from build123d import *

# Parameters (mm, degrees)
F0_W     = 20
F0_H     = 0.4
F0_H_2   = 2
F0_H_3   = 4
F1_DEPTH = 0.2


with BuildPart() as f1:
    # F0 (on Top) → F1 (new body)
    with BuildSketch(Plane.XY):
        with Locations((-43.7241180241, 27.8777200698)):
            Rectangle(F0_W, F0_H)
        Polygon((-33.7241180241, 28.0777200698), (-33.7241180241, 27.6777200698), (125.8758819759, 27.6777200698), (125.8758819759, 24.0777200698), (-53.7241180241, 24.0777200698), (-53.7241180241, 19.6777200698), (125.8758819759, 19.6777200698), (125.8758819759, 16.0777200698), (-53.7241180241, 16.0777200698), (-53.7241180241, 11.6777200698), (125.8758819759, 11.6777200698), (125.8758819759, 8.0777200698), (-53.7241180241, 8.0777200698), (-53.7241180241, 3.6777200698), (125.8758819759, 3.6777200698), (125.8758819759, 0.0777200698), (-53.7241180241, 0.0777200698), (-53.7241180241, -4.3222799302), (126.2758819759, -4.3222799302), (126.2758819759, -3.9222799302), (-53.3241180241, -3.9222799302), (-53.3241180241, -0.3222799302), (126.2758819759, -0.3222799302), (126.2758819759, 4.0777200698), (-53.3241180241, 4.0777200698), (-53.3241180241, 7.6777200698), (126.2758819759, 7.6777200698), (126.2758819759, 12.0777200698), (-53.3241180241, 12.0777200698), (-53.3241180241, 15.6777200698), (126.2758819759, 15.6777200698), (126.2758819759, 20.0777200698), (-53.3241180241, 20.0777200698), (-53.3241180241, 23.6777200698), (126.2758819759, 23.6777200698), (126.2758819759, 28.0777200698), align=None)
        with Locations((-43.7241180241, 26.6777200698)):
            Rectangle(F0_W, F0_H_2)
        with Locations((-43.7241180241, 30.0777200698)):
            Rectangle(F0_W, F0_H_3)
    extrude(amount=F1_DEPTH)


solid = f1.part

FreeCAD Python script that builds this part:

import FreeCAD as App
import Part
import Sketcher

V = App.Vector


def add_polygon(sketch, points):
    """Adds a closed chain of lines whose ends are joined by coincident constraints."""
    first, n = sketch.GeometryCount, len(points)
    for a, b in zip(points, points[1:] + points[:1]):
        sketch.addGeometry(Part.LineSegment(App.Vector(*a, 0), App.Vector(*b, 0)), False)
    for i in range(n):
        sketch.addConstraint(Sketcher.Constraint("Coincident", first + i, 2, first + (i + 1) % n, 1))

doc = App.newDocument("Part")
body = doc.addObject("PartDesign::Body", "Body")

sketch1 = doc.addObject("Sketcher::SketchObject", "Sketch")
body.addObject(sketch1)
sketch1.AttachmentSupport = (doc.XY_Plane, [""])
sketch1.MapMode = "FlatFace"
add_polygon(sketch1, [(-53.724118, 32.07772), (-53.724118, 25.67772), (-33.724118, 25.67772), (-33.724118, 27.67772), (125.875882, 27.67772), (125.875882, 24.07772), (-53.724118, 24.07772), (-53.724118, 19.67772), (125.875882, 19.67772), (125.875882, 16.07772), (-53.724118, 16.07772), (-53.724118, 11.67772), (125.875882, 11.67772), (125.875882, 8.07772), (-53.724118, 8.07772), (-53.724118, 3.67772), (125.875882, 3.67772), (125.875882, 0.07772), (-53.724118, 0.07772), (-53.724118, -4.32228), (126.275882, -4.32228), (126.275882, -3.92228), (-53.324118, -3.92228), (-53.324118, -0.32228), (126.275882, -0.32228), (126.275882, 4.07772), (-53.324118, 4.07772), (-53.324118, 7.67772), (126.275882, 7.67772), (126.275882, 12.07772), (-53.324118, 12.07772), (-53.324118, 15.67772), (126.275882, 15.67772), (126.275882, 20.07772), (-53.324118, 20.07772), (-53.324118, 23.67772), (126.275882, 23.67772), (126.275882, 28.07772), (-33.724118, 28.07772), (-33.724118, 32.07772)])
sketch1.addConstraint([
    Sketcher.Constraint("Vertical", 0),
    Sketcher.Constraint("Horizontal", 1),
    Sketcher.Constraint("Vertical", 2),
    Sketcher.Constraint("Horizontal", 3),
    Sketcher.Constraint("Vertical", 4),
    Sketcher.Constraint("Horizontal", 5),
    Sketcher.Constraint("Vertical", 6),
    Sketcher.Constraint("Horizontal", 7),
    Sketcher.Constraint("Vertical", 8),
    Sketcher.Constraint("Horizontal", 9),
    Sketcher.Constraint("Vertical", 10),
    Sketcher.Constraint("Horizontal", 11),
    Sketcher.Constraint("Vertical", 12),
    Sketcher.Constraint("Horizontal", 13),
    Sketcher.Constraint("Vertical", 14),
    Sketcher.Constraint("Horizontal", 15),
    Sketcher.Constraint("Vertical", 16),
    Sketcher.Constraint("Horizontal", 17),
    Sketcher.Constraint("Vertical", 18),
    Sketcher.Constraint("Horizontal", 19),
    Sketcher.Constraint("Vertical", 20),
    Sketcher.Constraint("Horizontal", 21),
    Sketcher.Constraint("Vertical", 22),
    Sketcher.Constraint("Horizontal", 23),
    Sketcher.Constraint("Vertical", 24),
    Sketcher.Constraint("Horizontal", 25),
    Sketcher.Constraint("Vertical", 26),
    Sketcher.Constraint("Horizontal", 27),
    Sketcher.Constraint("Vertical", 28),
    Sketcher.Constraint("Horizontal", 29),
    Sketcher.Constraint("Vertical", 30),
    Sketcher.Constraint("Horizontal", 31),
    Sketcher.Constraint("Vertical", 32),
    Sketcher.Constraint("Horizontal", 33),
    Sketcher.Constraint("Vertical", 34),
    Sketcher.Constraint("Horizontal", 35),
    Sketcher.Constraint("Vertical", 36),
    Sketcher.Constraint("Horizontal", 37),
    Sketcher.Constraint("Vertical", 38),
    Sketcher.Constraint("Horizontal", 39),
    Sketcher.Constraint("Vertical", 0, 2, 5, 2),
    Sketcher.Constraint("Vertical", 4, 2, 7, 2),
    Sketcher.Constraint("Vertical", 6, 2, 9, 2),
    Sketcher.Constraint("Vertical", 8, 2, 11, 2),
    Sketcher.Constraint("Vertical", 10, 2, 13, 2),
    Sketcher.Constraint("Vertical", 12, 2, 15, 2),
    Sketcher.Constraint("Vertical", 14, 2, 17, 2),
    Sketcher.Constraint("Vertical", 20, 2, 23, 2),
    Sketcher.Constraint("Vertical", 22, 2, 25, 2),
    Sketcher.Constraint("Vertical", 24, 2, 27, 2),
    Sketcher.Constraint("Vertical", 26, 2, 29, 2),
    Sketcher.Constraint("Vertical", 28, 2, 31, 2),
    Sketcher.Constraint("Vertical", 30, 2, 33, 2),
    Sketcher.Constraint("Vertical", 32, 2, 35, 2),
    Sketcher.Constraint("Vertical", 2, 2, 37, 2),
    Sketcher.Constraint("Equal", 17, 21),
    Sketcher.Constraint("Equal", 4, 8),
    Sketcher.Constraint("Equal", 6, 10),
    Sketcher.Constraint("Equal", 8, 12),
    Sketcher.Constraint("Equal", 10, 14),
    Sketcher.Constraint("Equal", 12, 16),
    Sketcher.Constraint("Equal", 14, 18),
    Sketcher.Constraint("Equal", 16, 22),
    Sketcher.Constraint("Equal", 18, 24),
    Sketcher.Constraint("Equal", 22, 26),
    Sketcher.Constraint("Equal", 24, 28),
    Sketcher.Constraint("Equal", 26, 30),
    Sketcher.Constraint("Equal", 28, 32),
    Sketcher.Constraint("Equal", 30, 34),
    Sketcher.Constraint("Equal", 32, 36),
    Sketcher.Constraint("DistanceX", 1, 1, 1, 2, 20.0),
    Sketcher.Constraint("DistanceX", 19, 1, 19, 2, 180.0),
    Sketcher.Constraint("DistanceY", 2, 1, 2, 2, 2.0),
    Sketcher.Constraint("DistanceY", 38, 1, 38, 2, 4.0),
    Sketcher.Constraint("DistanceX", 3, 1, 3, 2, 159.6),
    Sketcher.Constraint("DistanceY", 0, 2, 0, 1, 6.4),
    Sketcher.Constraint("DistanceY", 4, 2, 4, 1, 3.6),
    Sketcher.Constraint("DistanceY", 6, 2, 6, 1, 4.4),
    Sketcher.Constraint("DistanceX", 0, 2, -1, 1, 53.724118),
    Sketcher.Constraint("DistanceY", -1, 1, 0, 2, 25.67772),
])
pad1 = doc.addObject("PartDesign::Pad", "Pad")
body.addObject(pad1)
pad1.Profile = sketch1
pad1.Length = 0.2

doc.recompute()
